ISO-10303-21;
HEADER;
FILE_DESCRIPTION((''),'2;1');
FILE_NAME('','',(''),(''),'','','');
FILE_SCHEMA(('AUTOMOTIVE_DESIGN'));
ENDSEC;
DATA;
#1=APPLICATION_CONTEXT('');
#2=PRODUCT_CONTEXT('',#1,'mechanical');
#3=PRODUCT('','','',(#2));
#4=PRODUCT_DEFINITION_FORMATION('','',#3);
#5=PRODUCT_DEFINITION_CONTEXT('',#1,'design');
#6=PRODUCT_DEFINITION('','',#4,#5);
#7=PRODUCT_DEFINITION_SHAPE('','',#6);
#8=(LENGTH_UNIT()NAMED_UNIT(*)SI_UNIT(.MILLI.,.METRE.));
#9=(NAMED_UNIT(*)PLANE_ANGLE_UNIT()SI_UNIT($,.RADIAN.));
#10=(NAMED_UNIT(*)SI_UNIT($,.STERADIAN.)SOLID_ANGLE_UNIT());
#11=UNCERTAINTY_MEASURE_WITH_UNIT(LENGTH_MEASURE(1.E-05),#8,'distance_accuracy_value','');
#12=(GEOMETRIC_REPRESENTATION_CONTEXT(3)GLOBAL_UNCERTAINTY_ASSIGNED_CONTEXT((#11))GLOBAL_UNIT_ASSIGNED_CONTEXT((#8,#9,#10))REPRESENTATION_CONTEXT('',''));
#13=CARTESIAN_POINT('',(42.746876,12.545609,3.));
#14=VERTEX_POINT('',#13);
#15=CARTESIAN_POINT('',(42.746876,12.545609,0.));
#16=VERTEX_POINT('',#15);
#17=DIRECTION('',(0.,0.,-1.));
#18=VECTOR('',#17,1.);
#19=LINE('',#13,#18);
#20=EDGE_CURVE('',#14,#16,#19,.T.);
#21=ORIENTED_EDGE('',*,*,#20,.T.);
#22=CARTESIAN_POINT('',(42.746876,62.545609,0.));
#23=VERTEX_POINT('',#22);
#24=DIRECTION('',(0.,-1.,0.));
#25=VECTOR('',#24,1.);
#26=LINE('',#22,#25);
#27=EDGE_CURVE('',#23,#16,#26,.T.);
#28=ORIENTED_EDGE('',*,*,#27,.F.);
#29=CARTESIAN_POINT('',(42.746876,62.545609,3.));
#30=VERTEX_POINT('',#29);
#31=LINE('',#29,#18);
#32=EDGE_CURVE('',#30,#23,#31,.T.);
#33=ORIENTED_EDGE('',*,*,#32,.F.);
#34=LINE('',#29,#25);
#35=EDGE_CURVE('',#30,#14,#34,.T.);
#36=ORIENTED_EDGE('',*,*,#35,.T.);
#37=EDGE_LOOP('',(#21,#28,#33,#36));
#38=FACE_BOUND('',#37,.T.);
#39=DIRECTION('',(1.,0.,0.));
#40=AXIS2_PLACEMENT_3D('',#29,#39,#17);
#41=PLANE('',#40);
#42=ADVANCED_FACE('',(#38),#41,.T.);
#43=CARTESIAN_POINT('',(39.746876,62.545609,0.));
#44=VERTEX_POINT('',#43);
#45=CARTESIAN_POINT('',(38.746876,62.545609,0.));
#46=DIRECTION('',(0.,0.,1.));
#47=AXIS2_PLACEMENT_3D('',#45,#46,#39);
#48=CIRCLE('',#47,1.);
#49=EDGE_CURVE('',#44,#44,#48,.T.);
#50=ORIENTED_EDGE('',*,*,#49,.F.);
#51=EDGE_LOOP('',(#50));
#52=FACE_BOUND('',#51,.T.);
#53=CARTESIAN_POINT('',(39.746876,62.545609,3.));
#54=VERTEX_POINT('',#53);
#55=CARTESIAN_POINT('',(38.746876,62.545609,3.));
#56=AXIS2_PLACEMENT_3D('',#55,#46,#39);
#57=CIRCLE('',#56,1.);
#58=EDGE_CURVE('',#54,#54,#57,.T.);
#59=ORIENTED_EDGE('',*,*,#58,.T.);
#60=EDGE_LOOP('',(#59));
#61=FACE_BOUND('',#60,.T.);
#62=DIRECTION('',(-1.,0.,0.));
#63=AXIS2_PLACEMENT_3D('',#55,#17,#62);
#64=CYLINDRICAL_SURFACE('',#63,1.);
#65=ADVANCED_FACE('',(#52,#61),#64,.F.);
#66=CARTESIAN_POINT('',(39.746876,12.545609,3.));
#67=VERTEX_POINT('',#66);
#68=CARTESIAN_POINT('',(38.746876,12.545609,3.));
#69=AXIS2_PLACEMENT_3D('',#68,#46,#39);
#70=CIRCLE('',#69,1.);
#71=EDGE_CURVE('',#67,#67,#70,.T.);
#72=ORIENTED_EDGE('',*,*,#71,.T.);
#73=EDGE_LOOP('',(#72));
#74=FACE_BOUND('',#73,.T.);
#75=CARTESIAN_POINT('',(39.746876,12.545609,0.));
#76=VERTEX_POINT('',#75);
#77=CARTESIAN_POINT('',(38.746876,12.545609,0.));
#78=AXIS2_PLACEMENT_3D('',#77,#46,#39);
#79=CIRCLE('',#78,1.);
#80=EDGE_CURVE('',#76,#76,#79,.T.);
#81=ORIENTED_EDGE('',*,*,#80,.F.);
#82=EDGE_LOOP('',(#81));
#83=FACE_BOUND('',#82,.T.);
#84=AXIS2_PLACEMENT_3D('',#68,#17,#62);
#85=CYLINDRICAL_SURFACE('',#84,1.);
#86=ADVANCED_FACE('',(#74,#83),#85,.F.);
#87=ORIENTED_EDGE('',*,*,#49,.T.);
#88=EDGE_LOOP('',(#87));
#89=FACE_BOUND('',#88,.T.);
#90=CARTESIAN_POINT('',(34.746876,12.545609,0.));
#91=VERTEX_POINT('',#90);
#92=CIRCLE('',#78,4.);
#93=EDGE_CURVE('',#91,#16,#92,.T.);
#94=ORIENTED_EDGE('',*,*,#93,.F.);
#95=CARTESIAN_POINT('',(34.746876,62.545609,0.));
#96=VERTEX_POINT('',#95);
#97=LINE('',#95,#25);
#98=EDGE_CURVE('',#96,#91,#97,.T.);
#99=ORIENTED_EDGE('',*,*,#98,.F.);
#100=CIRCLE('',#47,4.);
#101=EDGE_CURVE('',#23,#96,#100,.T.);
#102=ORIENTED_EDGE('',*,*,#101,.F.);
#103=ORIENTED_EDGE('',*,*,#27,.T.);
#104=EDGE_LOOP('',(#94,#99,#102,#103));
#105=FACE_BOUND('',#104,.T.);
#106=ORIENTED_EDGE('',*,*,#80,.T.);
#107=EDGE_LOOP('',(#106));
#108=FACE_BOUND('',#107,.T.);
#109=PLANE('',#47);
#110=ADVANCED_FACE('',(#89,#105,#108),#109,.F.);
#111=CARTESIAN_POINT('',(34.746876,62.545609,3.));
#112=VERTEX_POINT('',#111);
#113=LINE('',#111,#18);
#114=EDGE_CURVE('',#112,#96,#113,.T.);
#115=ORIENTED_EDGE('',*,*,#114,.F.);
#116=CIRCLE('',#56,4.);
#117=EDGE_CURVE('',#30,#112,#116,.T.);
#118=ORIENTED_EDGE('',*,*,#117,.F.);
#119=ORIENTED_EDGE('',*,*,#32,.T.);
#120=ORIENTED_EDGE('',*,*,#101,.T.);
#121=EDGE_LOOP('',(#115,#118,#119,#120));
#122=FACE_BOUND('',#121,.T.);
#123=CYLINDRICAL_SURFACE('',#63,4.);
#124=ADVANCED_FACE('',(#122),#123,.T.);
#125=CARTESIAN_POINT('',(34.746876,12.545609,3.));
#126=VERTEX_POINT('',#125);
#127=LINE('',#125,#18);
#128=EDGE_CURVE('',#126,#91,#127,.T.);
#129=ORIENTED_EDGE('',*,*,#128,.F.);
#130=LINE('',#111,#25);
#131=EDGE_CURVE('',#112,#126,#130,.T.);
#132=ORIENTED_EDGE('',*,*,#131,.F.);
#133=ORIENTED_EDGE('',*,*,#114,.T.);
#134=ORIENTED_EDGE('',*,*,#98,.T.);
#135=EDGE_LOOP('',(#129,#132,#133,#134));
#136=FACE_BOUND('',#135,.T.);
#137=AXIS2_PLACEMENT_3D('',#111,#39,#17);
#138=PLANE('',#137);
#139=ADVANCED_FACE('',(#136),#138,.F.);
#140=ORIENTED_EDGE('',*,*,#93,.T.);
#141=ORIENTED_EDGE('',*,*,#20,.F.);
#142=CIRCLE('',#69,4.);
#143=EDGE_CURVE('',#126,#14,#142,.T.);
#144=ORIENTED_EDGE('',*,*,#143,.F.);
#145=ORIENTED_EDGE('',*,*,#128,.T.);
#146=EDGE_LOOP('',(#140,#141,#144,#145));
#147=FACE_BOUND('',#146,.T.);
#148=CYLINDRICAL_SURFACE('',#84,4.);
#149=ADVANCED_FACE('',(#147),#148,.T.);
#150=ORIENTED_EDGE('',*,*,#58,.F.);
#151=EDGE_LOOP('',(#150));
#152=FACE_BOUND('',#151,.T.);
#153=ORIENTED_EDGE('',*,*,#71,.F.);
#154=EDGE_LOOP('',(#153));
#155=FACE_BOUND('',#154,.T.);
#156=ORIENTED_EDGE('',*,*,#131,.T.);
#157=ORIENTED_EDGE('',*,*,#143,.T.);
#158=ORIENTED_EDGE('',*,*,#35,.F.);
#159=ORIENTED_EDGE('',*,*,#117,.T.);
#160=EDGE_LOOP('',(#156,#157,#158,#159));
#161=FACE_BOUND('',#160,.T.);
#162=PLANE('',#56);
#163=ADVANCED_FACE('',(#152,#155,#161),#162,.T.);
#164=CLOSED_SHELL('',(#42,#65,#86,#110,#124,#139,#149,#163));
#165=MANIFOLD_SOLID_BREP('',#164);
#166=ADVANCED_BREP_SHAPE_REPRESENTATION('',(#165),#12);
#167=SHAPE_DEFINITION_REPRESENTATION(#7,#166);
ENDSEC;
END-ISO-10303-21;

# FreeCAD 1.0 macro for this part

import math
import FreeCAD as App
import Part
import Sketcher

V = App.Vector
Q = App.Units.Quantity

doc = App.newDocument("Part")
body = doc.addObject("PartDesign::Body", "Body")

sketch1 = body.newObject("Sketcher::SketchObject", "Sketch")
sketch1.AttachmentSupport = (doc.getObject("XY_Plane"), [""])
sketch1.MapMode = "FlatFace"
sketch1.addGeometry(Part.LineSegment(V(34.7, 62.5, 0), V(34.7, 12.5, 0)), False)
sketch1.addGeometry(Part.ArcOfCircle(Part.Circle(V(38.7, 12.5, 0), V(0, 0, 1), 4), math.radians(180), math.radians(360)), False)
sketch1.addGeometry(Part.LineSegment(V(42.7, 12.5, 0), V(42.7, 62.5, 0)), False)
sketch1.addGeometry(Part.ArcOfCircle(Part.Circle(V(38.7, 62.5, 0), V(0, 0, 1), 4), math.radians(0), math.radians(180)), False)
sketch1.addGeometry(Part.Circle(V(38.7, 12.5, 0), V(0, 0, 1), 1), False)
sketch1.addGeometry(Part.Circle(V(38.7, 62.5, 0), V(0, 0, 1), 1), False)
sketch1.addConstraint(Sketcher.Constraint("Tangent", 0, 2, 1, 1))
sketch1.addConstraint(Sketcher.Constraint("Tangent", 1, 2, 2, 1))
sketch1.addConstraint(Sketcher.Constraint("Tangent", 2, 2, 3, 1))
sketch1.addConstraint(Sketcher.Constraint("Tangent", 3, 2, 0, 1))
sketch1.addConstraint(Sketcher.Constraint("Vertical", 0))
sketch1.addConstraint(Sketcher.Constraint("Vertical", 2))
sketch1.addConstraint(Sketcher.Constraint("Coincident", 4, 3, 1, 3))
sketch1.addConstraint(Sketcher.Constraint("Coincident", 5, 3, 3, 3))
sketch1.addConstraint(Sketcher.Constraint("Equal", 4, 5))
sketch1.addConstraint(Sketcher.Constraint("Diameter", 4, Q("2 mm")))
sketch1.addConstraint(Sketcher.Constraint("Radius", 1, Q("4 mm")))
sketch1.addConstraint(Sketcher.Constraint("DistanceY", 0, 2, 0, 1, Q("50 mm")))
sketch1.addConstraint(Sketcher.Constraint("DistanceY", -1, 1, 1, 3, Q("12.545609 mm")))
sketch1.addConstraint(Sketcher.Constraint("DistanceX", -1, 1, 1, 3, Q("38.746876 mm")))
pad1 = body.newObject("PartDesign::Pad", "Pad")
pad1.Profile = sketch1
pad1.Length = 3

doc.recompute()
